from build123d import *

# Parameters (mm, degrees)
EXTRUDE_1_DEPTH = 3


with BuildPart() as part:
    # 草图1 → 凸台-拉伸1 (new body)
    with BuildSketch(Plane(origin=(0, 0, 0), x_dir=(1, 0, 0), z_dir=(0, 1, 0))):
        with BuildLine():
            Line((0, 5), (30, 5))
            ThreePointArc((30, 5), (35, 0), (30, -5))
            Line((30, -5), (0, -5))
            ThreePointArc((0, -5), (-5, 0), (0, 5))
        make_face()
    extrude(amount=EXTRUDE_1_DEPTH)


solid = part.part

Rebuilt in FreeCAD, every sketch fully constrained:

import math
import FreeCAD as App
import Part
import Sketcher

V = App.Vector
Q = App.Units.Quantity

doc = App.newDocument("Part")
body = doc.addObject("PartDesign::Body", "Body")

# Sketch on XZ plane
sketch1 = body.newObject("Sketcher::SketchObject", "Sketch")
sketch1.AttachmentSupport = (doc.getObject("XZ_Plane"), [""])
sketch1.MapMode = "FlatFace"
sketch1.addGeometry([
    Part.LineSegment(V(30, -5, 0), V(0, -5, 0)),
    Part.ArcOfCircle(Part.Circle(V(0, 0, 0), V(0, 0, 1), 5), math.radians(90), math.radians(270)),
    Part.LineSegment(V(0, 5, 0), V(30, 5, 0)),
    Part.ArcOfCircle(Part.Circle(V(30, 0, 0), V(0, 0, 1), 5), math.radians(-90), math.radians(90)),
], False)
sketch1.addConstraint([
    Sketcher.Constraint("Tangent", 0, 2, 1, 2),
    Sketcher.Constraint("Tangent", 1, 1, 2, 1),
    Sketcher.Constraint("Tangent", 2, 2, 3, 2),
    Sketcher.Constraint("Tangent", 3, 1, 0, 1),
    Sketcher.Constraint("Horizontal", 0),
    Sketcher.Constraint("Horizontal", 2),
    Sketcher.Constraint("Coincident", 1, 3, -1, 1),
    Sketcher.Constraint("Radius", 1, Q("5 mm")),
    Sketcher.Constraint("DistanceX", 0, 2, 0, 1, Q("30 mm")),
])
pad1 = body.newObject("PartDesign::Pad", "Pad")
pad1.Profile = sketch1
pad1.Length = 3
pad1.Reversed = True

doc.recompute()
